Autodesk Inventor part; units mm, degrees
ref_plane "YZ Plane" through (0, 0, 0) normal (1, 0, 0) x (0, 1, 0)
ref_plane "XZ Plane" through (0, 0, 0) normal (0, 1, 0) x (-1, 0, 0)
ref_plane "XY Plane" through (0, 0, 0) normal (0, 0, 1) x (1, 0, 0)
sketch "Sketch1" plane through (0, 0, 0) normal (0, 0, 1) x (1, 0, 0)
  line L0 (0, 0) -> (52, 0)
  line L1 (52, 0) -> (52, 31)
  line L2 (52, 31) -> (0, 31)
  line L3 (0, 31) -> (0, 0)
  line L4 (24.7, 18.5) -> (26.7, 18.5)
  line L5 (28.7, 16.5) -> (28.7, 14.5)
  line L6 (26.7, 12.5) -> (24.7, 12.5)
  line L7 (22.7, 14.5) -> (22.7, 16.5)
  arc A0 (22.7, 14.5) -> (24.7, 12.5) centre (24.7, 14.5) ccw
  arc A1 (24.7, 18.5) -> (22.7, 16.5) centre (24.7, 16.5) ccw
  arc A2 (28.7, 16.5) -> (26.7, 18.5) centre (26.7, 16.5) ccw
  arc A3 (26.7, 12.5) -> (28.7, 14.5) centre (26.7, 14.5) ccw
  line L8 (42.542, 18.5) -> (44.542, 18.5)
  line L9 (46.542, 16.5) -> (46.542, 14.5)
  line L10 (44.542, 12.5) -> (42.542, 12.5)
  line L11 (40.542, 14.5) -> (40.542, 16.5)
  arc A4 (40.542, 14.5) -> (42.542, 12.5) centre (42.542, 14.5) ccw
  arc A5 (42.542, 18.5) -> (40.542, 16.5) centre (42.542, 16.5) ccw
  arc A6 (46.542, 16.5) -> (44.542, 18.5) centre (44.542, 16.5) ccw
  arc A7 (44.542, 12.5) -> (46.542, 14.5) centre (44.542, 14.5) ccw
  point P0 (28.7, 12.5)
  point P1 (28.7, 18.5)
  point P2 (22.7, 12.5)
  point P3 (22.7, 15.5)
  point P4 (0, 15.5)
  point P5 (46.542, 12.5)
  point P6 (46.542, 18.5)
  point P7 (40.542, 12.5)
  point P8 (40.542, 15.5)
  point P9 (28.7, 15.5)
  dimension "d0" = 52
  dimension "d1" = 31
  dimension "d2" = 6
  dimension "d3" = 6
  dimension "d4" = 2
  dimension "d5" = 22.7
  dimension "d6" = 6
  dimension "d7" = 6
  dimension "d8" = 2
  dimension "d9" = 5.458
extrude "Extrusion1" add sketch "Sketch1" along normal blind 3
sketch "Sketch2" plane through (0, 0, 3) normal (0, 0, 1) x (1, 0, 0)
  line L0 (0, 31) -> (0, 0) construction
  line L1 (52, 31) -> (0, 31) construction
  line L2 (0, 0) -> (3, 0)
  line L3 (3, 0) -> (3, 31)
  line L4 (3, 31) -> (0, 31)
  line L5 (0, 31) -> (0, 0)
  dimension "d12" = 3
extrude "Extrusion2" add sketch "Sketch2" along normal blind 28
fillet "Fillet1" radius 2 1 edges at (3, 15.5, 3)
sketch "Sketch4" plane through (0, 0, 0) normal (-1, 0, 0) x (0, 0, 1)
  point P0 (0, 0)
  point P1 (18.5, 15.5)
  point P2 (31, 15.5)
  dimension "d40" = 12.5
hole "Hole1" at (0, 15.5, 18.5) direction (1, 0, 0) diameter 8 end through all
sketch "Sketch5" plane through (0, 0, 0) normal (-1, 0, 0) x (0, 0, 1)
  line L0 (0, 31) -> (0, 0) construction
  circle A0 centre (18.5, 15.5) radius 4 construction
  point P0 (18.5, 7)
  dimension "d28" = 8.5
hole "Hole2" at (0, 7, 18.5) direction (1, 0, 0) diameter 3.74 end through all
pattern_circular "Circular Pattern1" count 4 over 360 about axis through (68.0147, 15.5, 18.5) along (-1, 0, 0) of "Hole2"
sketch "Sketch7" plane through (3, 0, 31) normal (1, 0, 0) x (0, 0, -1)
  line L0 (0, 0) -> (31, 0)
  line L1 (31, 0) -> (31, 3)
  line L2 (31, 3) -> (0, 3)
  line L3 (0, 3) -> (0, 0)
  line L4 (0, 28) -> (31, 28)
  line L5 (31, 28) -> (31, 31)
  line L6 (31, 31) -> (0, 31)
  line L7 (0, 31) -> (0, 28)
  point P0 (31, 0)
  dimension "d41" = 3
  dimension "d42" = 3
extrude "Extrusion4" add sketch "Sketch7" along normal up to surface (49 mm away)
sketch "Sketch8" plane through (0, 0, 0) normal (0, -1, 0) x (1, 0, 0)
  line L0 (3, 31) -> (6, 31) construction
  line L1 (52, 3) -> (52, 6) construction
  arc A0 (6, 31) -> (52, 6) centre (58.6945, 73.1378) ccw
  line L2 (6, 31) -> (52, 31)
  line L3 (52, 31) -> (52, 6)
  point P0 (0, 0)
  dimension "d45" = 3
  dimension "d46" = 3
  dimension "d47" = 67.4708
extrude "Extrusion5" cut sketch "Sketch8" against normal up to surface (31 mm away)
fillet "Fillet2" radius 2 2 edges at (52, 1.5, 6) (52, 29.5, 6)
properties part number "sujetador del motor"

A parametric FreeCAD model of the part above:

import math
import FreeCAD as App
import Part
import Sketcher

V = App.Vector
Q = App.Units.Quantity


def edges_at(feature, points):
    """Names of the edges that pass closest to the given points."""
    edges = feature.Shape.Edges
    near = lambda p: min(range(len(edges)), key=lambda i: edges[i].distToShape(Part.Vertex(*p))[0])
    return sorted({f"Edge{near(p) + 1}" for p in points})


def add_polygon(sketch, points):
    """Adds a closed chain of lines whose ends are joined by coincident constraints."""
    first, n = sketch.GeometryCount, len(points)
    for a, b in zip(points, points[1:] + points[:1]):
        sketch.addGeometry(Part.LineSegment(App.Vector(*a, 0), App.Vector(*b, 0)), False)
    for i in range(n):
        sketch.addConstraint(Sketcher.Constraint("Coincident", first + i, 2, first + (i + 1) % n, 1))

doc = App.newDocument("Part")
body = doc.addObject("PartDesign::Body", "Body")

# Sketch on XY plane
sketch1 = body.newObject("Sketcher::SketchObject", "Sketch")
sketch1.AttachmentSupport = (doc.getObject("XY_Plane"), [""])
sketch1.MapMode = "FlatFace"
add_polygon(sketch1, [(0, 31), (0, 0), (52, 0), (52, 31)])  # lines 0-3
sketch1.addGeometry(Part.ArcOfCircle(Part.Circle(V(24.7, 16.5, 0), V(0, 0, 1), 2), math.radians(90), math.radians(180)), False)  # 4
sketch1.addGeometry(Part.LineSegment(V(24.7, 18.5, 0), V(26.7, 18.5, 0)), False)  # 5
sketch1.addGeometry(Part.ArcOfCircle(Part.Circle(V(26.7, 16.5, 0), V(0, 0, 1), 2), math.radians(0), math.radians(90)), False)  # 6
sketch1.addGeometry(Part.LineSegment(V(28.7, 16.5, 0), V(28.7, 14.5, 0)), False)  # 7
sketch1.addGeometry(Part.ArcOfCircle(Part.Circle(V(26.7, 14.5, 0), V(0, 0, 1), 2), math.radians(-90), math.radians(0)), False)  # 8
sketch1.addGeometry(Part.LineSegment(V(26.7, 12.5, 0), V(24.7, 12.5, 0)), False)  # 9
sketch1.addGeometry(Part.ArcOfCircle(Part.Circle(V(24.7, 14.5, 0), V(0, 0, 1), 2), math.radians(180), math.radians(270)), False)  # 10
sketch1.addGeometry(Part.LineSegment(V(22.7, 14.5, 0), V(22.7, 16.5, 0)), False)  # 11
sketch1.addGeometry(Part.ArcOfCircle(Part.Circle(V(42.5, 16.5, 0), V(0, 0, 1), 2), math.radians(90), math.radians(180)), False)  # 12
sketch1.addGeometry(Part.LineSegment(V(42.5, 18.5, 0), V(44.5, 18.5, 0)), False)  # 13
sketch1.addGeometry(Part.ArcOfCircle(Part.Circle(V(44.5, 16.5, 0), V(0, 0, 1), 2), math.radians(0), math.radians(90)), False)  # 14
sketch1.addGeometry(Part.LineSegment(V(46.5, 16.5, 0), V(46.5, 14.5, 0)), False)  # 15
sketch1.addGeometry(Part.ArcOfCircle(Part.Circle(V(44.5, 14.5, 0), V(0, 0, 1), 2), math.radians(-90), math.radians(0)), False)  # 16
sketch1.addGeometry(Part.LineSegment(V(44.5, 12.5, 0), V(42.5, 12.5, 0)), False)  # 17
sketch1.addGeometry(Part.ArcOfCircle(Part.Circle(V(42.5, 14.5, 0), V(0, 0, 1), 2), math.radians(180), math.radians(270)), False)  # 18
sketch1.addGeometry(Part.LineSegment(V(40.5, 14.5, 0), V(40.5, 16.5, 0)), False)  # 19
sketch1.addConstraint([
    Sketcher.Constraint("Tangent", 4, 1, 5, 1),
    Sketcher.Constraint("Tangent", 5, 2, 6, 2),
    Sketcher.Constraint("Tangent", 6, 1, 7, 1),
    Sketcher.Constraint("Tangent", 7, 2, 8, 2),
    Sketcher.Constraint("Tangent", 8, 1, 9, 1),
    Sketcher.Constraint("Tangent", 9, 2, 10, 2),
    Sketcher.Constraint("Tangent", 10, 1, 11, 1),
    Sketcher.Constraint("Tangent", 11, 2, 4, 2),
    Sketcher.Constraint("Tangent", 12, 1, 13, 1),
    Sketcher.Constraint("Tangent", 13, 2, 14, 2),
    Sketcher.Constraint("Tangent", 14, 1, 15, 1),
    Sketcher.Constraint("Tangent", 15, 2, 16, 2),
    Sketcher.Constraint("Tangent", 16, 1, 17, 1),
    Sketcher.Constraint("Tangent", 17, 2, 18, 2),
    Sketcher.Constraint("Tangent", 18, 1, 19, 1),
    Sketcher.Constraint("Tangent", 19, 2, 12, 2),
    Sketcher.Constraint("Vertical", 0),
    Sketcher.Constraint("Horizontal", 1),
    Sketcher.Constraint("Vertical", 2),
    Sketcher.Constraint("Horizontal", 3),
    Sketcher.Constraint("Horizontal", 5),
    Sketcher.Constraint("Vertical", 7),
    Sketcher.Constraint("Horizontal", 9),
    Sketcher.Constraint("Vertical", 11),
    Sketcher.Constraint("Horizontal", 13),
    Sketcher.Constraint("Vertical", 15),
    Sketcher.Constraint("Horizontal", 17),
    Sketcher.Constraint("Vertical", 19),
    Sketcher.Constraint("Coincident", 0, 2, -1, 1),
    Sketcher.Constraint("Equal", 4, 6),
    Sketcher.Constraint("Equal", 6, 8),
    Sketcher.Constraint("Equal", 8, 10),
    Sketcher.Constraint("Equal", 10, 12),
    Sketcher.Constraint("Equal", 12, 14),
    Sketcher.Constraint("Equal", 14, 16),
    Sketcher.Constraint("Equal", 16, 18),
    Sketcher.Constraint("Horizontal", 6, 3, 12, 3),
    Sketcher.Constraint("Horizontal", 10, 3, 16, 3),
    Sketcher.Constraint("Equal", 9, 13),
    Sketcher.Constraint("Equal", 17, 7),
    Sketcher.Constraint("Radius", 4, Q("2 mm")),
    Sketcher.Constraint("DistanceX", 1, 1, 1, 2, Q("52 mm")),
    Sketcher.Constraint("DistanceX", 5, 1, 5, 2, Q("2 mm")),
    Sketcher.Constraint("DistanceY", 0, 2, 0, 1, Q("31 mm")),
    Sketcher.Constraint("DistanceX", -1, 1, 10, 1, Q("22.7 mm")),
    Sketcher.Constraint("DistanceY", -1, 1, 4, 3, Q("16.5 mm")),
    Sketcher.Constraint("DistanceX", -1, 1, 12, 3, Q("42.542 mm")),
])
pad1 = body.newObject("PartDesign::Pad", "Pad")
pad1.Profile = sketch1
pad1.Length = 3

# Sketch on XY plane
sketch2 = body.newObject("Sketcher::SketchObject", "Sketch001")
sketch2.AttachmentSupport = (doc.getObject("XY_Plane"), [""])
sketch2.MapMode = "FlatFace"
sketch2.AttachmentOffset = App.Placement(V(0, 0, 3), App.Rotation())
add_polygon(sketch2, [(0, 31), (0, 0), (3, 0), (3, 31)])  # lines 0-3
sketch2.addConstraint([
    Sketcher.Constraint("Vertical", 0),
    Sketcher.Constraint("Horizontal", 1),
    Sketcher.Constraint("Vertical", 2),
    Sketcher.Constraint("Horizontal", 3),
    Sketcher.Constraint("Coincident", 0, 2, -1, 1),
    Sketcher.Constraint("DistanceX", 1, 1, 1, 2, Q("3 mm")),
    Sketcher.Constraint("DistanceY", 0, 2, 0, 1, Q("31 mm")),
])
pad2 = body.newObject("PartDesign::Pad", "Pad001")
pad2.Profile = sketch2
pad2.Length = 28
doc.recompute()

fillet = body.newObject("PartDesign::Fillet", "Fillet")
fillet.Base = (pad2, edges_at(pad2, [(3, 15.5, 3)]))
fillet.Radius = 2

# Sketch on YZ plane
sketch3 = body.newObject("Sketcher::SketchObject", "Sketch002")
sketch3.AttachmentSupport = (doc.getObject("YZ_Plane"), [""])
sketch3.MapMode = "FlatFace"
sketch3.addGeometry(Part.Circle(V(15.5, 18.5, 0), V(0, 0, 1), 4), False)
sketch3.addConstraint([
    Sketcher.Constraint("Diameter", 0, Q("8 mm")),
    Sketcher.Constraint("DistanceX", -1, 1, 0, 3, Q("15.5 mm")),
    Sketcher.Constraint("DistanceY", -1, 1, 0, 3, Q("18.5 mm")),
])
doc.recompute()
hole = body.newObject("PartDesign::Hole", "Hole")
hole.Profile = sketch3
hole.ThreadType = "None"
hole.Diameter = 8
hole.DepthType = "ThroughAll"
hole.Reversed = True

# Sketch on YZ plane
sketch4 = body.newObject("Sketcher::SketchObject", "Sketch003")
sketch4.AttachmentSupport = (doc.getObject("YZ_Plane"), [""])
sketch4.MapMode = "FlatFace"
sketch4.addGeometry(Part.Circle(V(7, 18.5, 0), V(0, 0, 1), 1.9), False)
sketch4.addConstraint([
    Sketcher.Constraint("Diameter", 0, Q("3.74 mm")),
    Sketcher.Constraint("DistanceX", -1, 1, 0, 3, Q("7 mm")),
    Sketcher.Constraint("DistanceY", -1, 1, 0, 3, Q("18.5 mm")),
])
doc.recompute()
hole2 = body.newObject("PartDesign::Hole", "Hole001")
hole2.Profile = sketch4
hole2.ThreadType = "None"
hole2.Diameter = 3.74
hole2.DepthType = "ThroughAll"
hole2.Reversed = True
doc.recompute()

datumline = body.newObject("PartDesign::Line", "DatumLine")
datumline.Placement = App.Placement(V(0, 15.5, 18.5), App.Rotation(V(0, 0, 1), V(1, 0, 0)))
polarpattern = body.newObject("PartDesign::PolarPattern", "PolarPattern")
polarpattern.Originals = [hole2]
polarpattern.Axis = (datumline, [""])
polarpattern.Angle = 360
polarpattern.Occurrences = 4
body.Tip = polarpattern

# Sketch on YZ plane
sketch5 = body.newObject("Sketcher::SketchObject", "Sketch004")
sketch5.AttachmentSupport = (doc.getObject("YZ_Plane"), [""])
sketch5.MapMode = "FlatFace"
sketch5.AttachmentOffset = App.Placement(V(0, 0, 3), App.Rotation())
add_polygon(sketch5, [(3, 31), (0, 31), (0, 0), (3, 0)])  # lines 0-3
add_polygon(sketch5, [(31, 31), (28, 31), (28, 0), (31, 0)])  # lines 4-7
sketch5.addConstraint([
    Sketcher.Constraint("Horizontal", 0),
    Sketcher.Constraint("Vertical", 1),
    Sketcher.Constraint("Horizontal", 2),
    Sketcher.Constraint("Vertical", 3),
    Sketcher.Constraint("Horizontal", 4),
    Sketcher.Constraint("Vertical", 5),
    Sketcher.Constraint("Horizontal", 6),
    Sketcher.Constraint("Vertical", 7),
    Sketcher.Constraint("Coincident", 1, 2, -1, 1),
    Sketcher.Constraint("PointOnObject", 5, 2, -1),
    Sketcher.Constraint("Horizontal", 3, 2, 4, 2),
    Sketcher.Constraint("Equal", 2, 4),
    Sketcher.Constraint("DistanceX", 0, 2, 0, 1, Q("3 mm")),
    Sketcher.Constraint("DistanceY", 1, 2, 1, 1, Q("31 mm")),
    Sketcher.Constraint("DistanceX", -1, 1, 4, 2, Q("28 mm")),
])
pad3 = body.newObject("PartDesign::Pad", "Pad002")
pad3.Profile = sketch5
pad3.Length = 49

# Sketch on XZ plane
sketch6 = body.newObject("Sketcher::SketchObject", "Sketch005")
sketch6.AttachmentSupport = (doc.getObject("XZ_Plane"), [""])
sketch6.MapMode = "FlatFace"
sketch6.addGeometry([
    Part.LineSegment(V(52, 31, 0), V(6, 31, 0)),
    Part.ArcOfCircle(Part.Circle(V(59, 73, 0), V(0, 0, 1), 67), math.radians(-141), math.radians(-96)),
    Part.LineSegment(V(52, 6, 0), V(52, 31, 0)),
], False)
sketch6.addConstraint([
    Sketcher.Constraint("Coincident", 0, 2, 1, 1),
    Sketcher.Constraint("Coincident", 1, 2, 2, 1),
    Sketcher.Constraint("Coincident", 2, 2, 0, 1),
    Sketcher.Constraint("Horizontal", 0),
    Sketcher.Constraint("Vertical", 2),
    Sketcher.Constraint("Radius", 1, Q("67.4708 mm")),
    Sketcher.Constraint("DistanceX", 0, 2, 0, 1, Q("46 mm")),
    Sketcher.Constraint("DistanceY", 2, 1, 2, 2, Q("25 mm")),
    Sketcher.Constraint("DistanceX", -1, 1, 0, 2, Q("6 mm")),
    Sketcher.Constraint("DistanceY", -1, 1, 0, 2, Q("31 mm")),
])
pocket1 = body.newObject("PartDesign::Pocket", "Pocket")
pocket1.Profile = sketch6
pocket1.Length = 31
doc.recompute()

fillet2 = body.newObject("PartDesign::Fillet", "Fillet001")
fillet2.Base = (pocket1, edges_at(pocket1, [(52, 1.5, 6), (52, 29.5, 6)]))
fillet2.Radius = 2

doc.recompute()
